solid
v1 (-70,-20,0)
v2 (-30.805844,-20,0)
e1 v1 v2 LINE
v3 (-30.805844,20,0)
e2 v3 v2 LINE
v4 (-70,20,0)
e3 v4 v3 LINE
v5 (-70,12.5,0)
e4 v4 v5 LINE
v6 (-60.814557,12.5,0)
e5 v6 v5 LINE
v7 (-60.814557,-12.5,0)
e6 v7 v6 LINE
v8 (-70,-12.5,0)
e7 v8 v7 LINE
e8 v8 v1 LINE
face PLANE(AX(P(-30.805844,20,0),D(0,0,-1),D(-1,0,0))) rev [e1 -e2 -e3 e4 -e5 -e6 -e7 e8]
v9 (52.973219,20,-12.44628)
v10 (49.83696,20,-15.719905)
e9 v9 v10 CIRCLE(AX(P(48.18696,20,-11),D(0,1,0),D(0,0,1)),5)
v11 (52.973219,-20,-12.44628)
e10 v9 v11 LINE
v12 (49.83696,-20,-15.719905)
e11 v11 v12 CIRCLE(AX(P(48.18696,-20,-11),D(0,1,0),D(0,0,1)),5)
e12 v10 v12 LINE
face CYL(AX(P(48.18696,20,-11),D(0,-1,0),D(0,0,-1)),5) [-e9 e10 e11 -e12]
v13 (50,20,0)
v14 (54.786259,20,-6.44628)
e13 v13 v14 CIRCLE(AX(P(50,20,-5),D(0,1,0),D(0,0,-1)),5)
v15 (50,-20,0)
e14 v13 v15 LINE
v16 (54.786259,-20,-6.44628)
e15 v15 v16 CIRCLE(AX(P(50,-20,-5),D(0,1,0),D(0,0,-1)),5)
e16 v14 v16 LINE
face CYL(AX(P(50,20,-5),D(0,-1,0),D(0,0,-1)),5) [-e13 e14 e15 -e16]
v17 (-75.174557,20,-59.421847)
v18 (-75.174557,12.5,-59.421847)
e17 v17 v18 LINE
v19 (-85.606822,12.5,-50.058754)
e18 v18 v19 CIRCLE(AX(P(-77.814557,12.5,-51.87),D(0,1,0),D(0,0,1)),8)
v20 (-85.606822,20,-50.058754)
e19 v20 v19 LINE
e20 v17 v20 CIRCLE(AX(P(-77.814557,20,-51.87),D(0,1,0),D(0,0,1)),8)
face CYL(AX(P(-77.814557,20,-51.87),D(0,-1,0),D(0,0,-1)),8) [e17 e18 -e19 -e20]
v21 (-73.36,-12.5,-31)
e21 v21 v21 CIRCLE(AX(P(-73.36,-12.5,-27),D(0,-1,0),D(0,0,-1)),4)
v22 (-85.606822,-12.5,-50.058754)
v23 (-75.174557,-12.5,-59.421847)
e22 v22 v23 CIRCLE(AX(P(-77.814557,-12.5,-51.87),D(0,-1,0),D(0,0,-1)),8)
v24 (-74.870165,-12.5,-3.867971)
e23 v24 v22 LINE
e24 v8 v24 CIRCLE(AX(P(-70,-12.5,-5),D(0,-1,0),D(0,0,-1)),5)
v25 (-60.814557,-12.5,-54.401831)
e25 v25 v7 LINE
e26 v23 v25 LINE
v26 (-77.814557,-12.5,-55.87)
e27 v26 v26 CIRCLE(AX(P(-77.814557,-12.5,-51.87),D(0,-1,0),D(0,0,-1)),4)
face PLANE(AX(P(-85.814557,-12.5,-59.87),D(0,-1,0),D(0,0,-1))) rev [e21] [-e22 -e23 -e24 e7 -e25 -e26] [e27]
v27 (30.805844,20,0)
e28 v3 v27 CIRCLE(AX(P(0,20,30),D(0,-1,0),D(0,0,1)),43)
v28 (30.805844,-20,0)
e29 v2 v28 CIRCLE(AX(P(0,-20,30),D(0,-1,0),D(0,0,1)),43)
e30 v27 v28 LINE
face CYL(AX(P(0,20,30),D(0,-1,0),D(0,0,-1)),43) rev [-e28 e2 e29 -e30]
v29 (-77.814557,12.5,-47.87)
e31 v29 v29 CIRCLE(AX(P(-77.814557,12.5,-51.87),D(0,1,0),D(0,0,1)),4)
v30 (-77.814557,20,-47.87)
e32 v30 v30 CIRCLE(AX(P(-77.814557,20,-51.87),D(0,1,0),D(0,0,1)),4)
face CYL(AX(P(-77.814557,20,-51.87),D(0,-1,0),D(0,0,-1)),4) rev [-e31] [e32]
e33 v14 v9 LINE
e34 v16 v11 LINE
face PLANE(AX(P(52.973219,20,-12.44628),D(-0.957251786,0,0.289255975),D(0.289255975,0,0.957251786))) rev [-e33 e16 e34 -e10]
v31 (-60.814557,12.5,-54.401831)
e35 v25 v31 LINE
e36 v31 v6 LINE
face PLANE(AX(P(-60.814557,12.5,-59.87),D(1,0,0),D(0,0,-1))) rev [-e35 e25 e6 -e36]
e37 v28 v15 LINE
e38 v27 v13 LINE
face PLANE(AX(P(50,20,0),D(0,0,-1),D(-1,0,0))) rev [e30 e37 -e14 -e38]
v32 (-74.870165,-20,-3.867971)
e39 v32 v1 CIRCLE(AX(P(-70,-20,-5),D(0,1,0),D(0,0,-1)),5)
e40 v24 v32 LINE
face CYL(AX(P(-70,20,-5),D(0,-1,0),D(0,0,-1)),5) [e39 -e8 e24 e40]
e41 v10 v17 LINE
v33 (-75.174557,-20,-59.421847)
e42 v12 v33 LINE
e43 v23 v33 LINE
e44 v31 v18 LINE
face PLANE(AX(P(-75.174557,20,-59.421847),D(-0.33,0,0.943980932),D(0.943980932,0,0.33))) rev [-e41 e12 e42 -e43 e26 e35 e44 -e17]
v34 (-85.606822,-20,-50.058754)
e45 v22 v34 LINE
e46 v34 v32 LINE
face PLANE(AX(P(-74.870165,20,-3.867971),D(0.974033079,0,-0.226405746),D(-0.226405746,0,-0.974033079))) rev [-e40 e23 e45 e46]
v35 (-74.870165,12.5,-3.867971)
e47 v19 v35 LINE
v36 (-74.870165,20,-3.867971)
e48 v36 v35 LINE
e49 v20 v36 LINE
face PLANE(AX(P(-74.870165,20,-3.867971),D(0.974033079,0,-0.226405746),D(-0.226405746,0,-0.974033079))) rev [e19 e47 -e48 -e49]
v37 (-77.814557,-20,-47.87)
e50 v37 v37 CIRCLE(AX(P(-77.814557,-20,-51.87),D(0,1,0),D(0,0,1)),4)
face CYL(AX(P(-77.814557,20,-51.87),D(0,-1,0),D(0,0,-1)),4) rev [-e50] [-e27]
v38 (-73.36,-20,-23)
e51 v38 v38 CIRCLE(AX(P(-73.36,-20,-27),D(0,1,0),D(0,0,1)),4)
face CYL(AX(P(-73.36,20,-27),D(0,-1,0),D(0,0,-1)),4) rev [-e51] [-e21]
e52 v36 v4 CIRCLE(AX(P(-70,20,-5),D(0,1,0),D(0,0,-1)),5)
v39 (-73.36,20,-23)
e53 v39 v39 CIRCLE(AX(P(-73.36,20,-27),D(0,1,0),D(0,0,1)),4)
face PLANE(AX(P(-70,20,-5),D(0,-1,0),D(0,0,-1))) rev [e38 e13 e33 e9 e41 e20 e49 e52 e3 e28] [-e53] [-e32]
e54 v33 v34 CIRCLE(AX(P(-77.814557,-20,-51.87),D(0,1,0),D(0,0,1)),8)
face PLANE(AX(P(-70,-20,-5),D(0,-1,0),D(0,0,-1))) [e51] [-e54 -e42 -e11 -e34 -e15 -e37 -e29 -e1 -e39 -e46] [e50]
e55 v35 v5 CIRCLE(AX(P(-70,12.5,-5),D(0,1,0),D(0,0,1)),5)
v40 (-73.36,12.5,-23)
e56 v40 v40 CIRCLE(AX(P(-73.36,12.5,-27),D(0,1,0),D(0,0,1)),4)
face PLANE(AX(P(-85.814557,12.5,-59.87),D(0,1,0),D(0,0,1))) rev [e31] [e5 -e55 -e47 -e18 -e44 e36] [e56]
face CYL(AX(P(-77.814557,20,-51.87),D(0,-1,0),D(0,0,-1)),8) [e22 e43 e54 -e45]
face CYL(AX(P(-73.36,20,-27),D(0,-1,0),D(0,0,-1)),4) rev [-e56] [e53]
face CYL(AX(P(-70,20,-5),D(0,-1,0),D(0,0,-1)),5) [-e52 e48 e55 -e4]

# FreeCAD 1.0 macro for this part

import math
import FreeCAD as App
import Part
import Sketcher
from FreeCAD import Vector
Q = App.Units.Quantity


def add_polygon(sketch, points):
    """Adds a closed chain of lines whose ends are joined by coincident constraints."""
    first, n = sketch.GeometryCount, len(points)
    for a, b in zip(points, points[1:] + points[:1]):
        sketch.addGeometry(Part.LineSegment(App.Vector(*a, 0), App.Vector(*b, 0)), False)
    for i in range(n):
        sketch.addConstraint(Sketcher.Constraint("Coincident", first + i, 2, first + (i + 1) % n, 1))

doc = App.newDocument("Part")
params = doc.addObject("Spreadsheet::Sheet", "Params")
for row, (alias, value) in enumerate([
    ("sketch1_diameter", "8 mm"),
    ("sketch1_radius", "43 mm"),
    ("sketch1_radius2", "5 mm"),
    ("sketch1_radius3", "8 mm"),
    ("pad1_length", "40 mm"),
    ("sketch2_width", "25 mm"),
], start=1):
    params.set(f"A{row}", alias)
    params.set(f"B{row}", "=" + value)
    params.setAlias(f"B{row}", alias)

body = doc.addObject("PartDesign::Body", "Body")

# Sketch on XZ plane
sketch1 = body.newObject("Sketcher::SketchObject", "Sketch")
sketch1.AttachmentSupport = (doc.getObject("XZ_Plane"), [""])
sketch1.MapMode = "FlatFace"
sketch1.addGeometry(Part.LineSegment(Vector(-70, 0, 0), Vector(-30.8, 0, 0)), False)
sketch1.addGeometry(Part.ArcOfCircle(Part.Circle(Vector(0, 30, 0), Vector(0, 0, 1), 43), math.radians(-136), math.radians(-44)), False)
sketch1.addGeometry(Part.LineSegment(Vector(30.8, 0, 0), Vector(50, 0, 0)), False)
sketch1.addGeometry(Part.ArcOfCircle(Part.Circle(Vector(50, -5, 0), Vector(0, 0, 1), 5), math.radians(-17), math.radians(90)), False)
sketch1.addGeometry(Part.LineSegment(Vector(54.8, -6.4, 0), Vector(53, -12.4, 0)), False)
sketch1.addGeometry(Part.ArcOfCircle(Part.Circle(Vector(48.2, -11, 0), Vector(0, 0, 1), 5), math.radians(-71), math.radians(-17)), False)
sketch1.addGeometry(Part.LineSegment(Vector(49.8, -15.7, 0), Vector(-75.2, -59.4, 0)), False)
sketch1.addGeometry(Part.ArcOfCircle(Part.Circle(Vector(-77.8, -51.9, 0), Vector(0, 0, 1), 8), math.radians(167), math.radians(289)), False)
sketch1.addGeometry(Part.LineSegment(Vector(-85.6, -50.1, 0), Vector(-74.9, -3.9, 0)), False)
sketch1.addGeometry(Part.ArcOfCircle(Part.Circle(Vector(-70, -5, 0), Vector(0, 0, 1), 5), math.radians(90), math.radians(167)), False)
sketch1.addGeometry(Part.Circle(Vector(-73.4, -27, 0), Vector(0, 0, 1), 4), False)
sketch1.addGeometry(Part.Circle(Vector(-77.8, -51.9, 0), Vector(0, 0, 1), 4), False)
sketch1.addConstraint(Sketcher.Constraint("Coincident", 0, 2, 1, 1))
sketch1.addConstraint(Sketcher.Constraint("Coincident", 1, 2, 2, 1))
sketch1.addConstraint(Sketcher.Constraint("Tangent", 2, 2, 3, 2))
sketch1.addConstraint(Sketcher.Constraint("Tangent", 3, 1, 4, 1))
sketch1.addConstraint(Sketcher.Constraint("Tangent", 4, 2, 5, 2))
sketch1.addConstraint(Sketcher.Constraint("Tangent", 5, 1, 6, 1))
sketch1.addConstraint(Sketcher.Constraint("Tangent", 6, 2, 7, 2))
sketch1.addConstraint(Sketcher.Constraint("Tangent", 7, 1, 8, 1))
sketch1.addConstraint(Sketcher.Constraint("Tangent", 8, 2, 9, 2))
sketch1.addConstraint(Sketcher.Constraint("Tangent", 9, 1, 0, 1))
sketch1.addConstraint(Sketcher.Constraint("Horizontal", 0))
sketch1.addConstraint(Sketcher.Constraint("Horizontal", 2))
sketch1.addConstraint(Sketcher.Constraint("Coincident", 11, 3, 7, 3))
sketch1.addConstraint(Sketcher.Constraint("Equal", 3, 5))
sketch1.addConstraint(Sketcher.Constraint("Equal", 5, 9))
sketch1.addConstraint(Sketcher.Constraint("Equal", 10, 11))
sketch1.addConstraint(Sketcher.Constraint("Symmetric", 0, 2, 1, 2, -1, 1))
sketch1.addConstraint(Sketcher.Constraint("PointOnObject", 1, 3, -2))
sketch1.addConstraint(Sketcher.Constraint("Diameter", 10, Q("8 mm")))
sketch1.addConstraint(Sketcher.Constraint("Radius", 1, Q("43 mm")))
sketch1.addConstraint(Sketcher.Constraint("Radius", 3, Q("5 mm")))
sketch1.addConstraint(Sketcher.Constraint("Radius", 7, Q("8 mm")))
sketch1.addConstraint(Sketcher.Constraint("DistanceY", -1, 1, 1, 3, Q("30 mm")))
sketch1.addConstraint(Sketcher.Constraint("DistanceX", -1, 1, 3, 3, Q("50 mm")))
sketch1.addConstraint(Sketcher.Constraint("DistanceY", 5, 3, -1, 1, Q("11 mm")))
sketch1.addConstraint(Sketcher.Constraint("DistanceX", 9, 3, -1, 1, Q("70 mm")))
sketch1.addConstraint(Sketcher.Constraint("DistanceY", 10, 3, -1, 1, Q("27 mm")))
sketch1.addConstraint(Sketcher.Constraint("DistanceY", 7, 3, -1, 1, Q("51.87 mm")))
sketch1.addConstraint(Sketcher.Constraint("DistanceX", 10, 3, -1, 1, Q("73.36 mm")))
sketch1.addConstraint(Sketcher.Constraint("DistanceX", 11, 3, 6, 2, Q("2.64 mm")))
sketch1.addConstraint(Sketcher.Constraint("DistanceX", 5, 3, 3, 1, Q("6.599299 mm")))
sketch1.setExpression("Constraints[18]", "Params.sketch1_diameter")
sketch1.setExpression("Constraints[19]", "Params.sketch1_radius")
sketch1.setExpression("Constraints[20]", "Params.sketch1_radius2")
sketch1.setExpression("Constraints[21]", "Params.sketch1_radius3")
pad1 = body.newObject("PartDesign::Pad", "Pad")
pad1.Profile = sketch1
pad1.setExpression("Length", "Params.pad1_length")
pad1.Midplane = True

# Sketch on XY plane
sketch2 = body.newObject("Sketcher::SketchObject", "Sketch001")
sketch2.AttachmentSupport = (doc.getObject("XY_Plane"), [""])
sketch2.MapMode = "FlatFace"
add_polygon(sketch2, [(-86, 12), (-86, -12), (-61, -12), (-61, 12)])  # lines 0-3
sketch2.addConstraint(Sketcher.Constraint("Vertical", 0))
sketch2.addConstraint(Sketcher.Constraint("Horizontal", 1))
sketch2.addConstraint(Sketcher.Constraint("Vertical", 2))
sketch2.addConstraint(Sketcher.Constraint("Horizontal", 3))
sketch2.addConstraint(Sketcher.Constraint("Equal", 3, 0))
sketch2.addConstraint(Sketcher.Constraint("DistanceX", 1, 1, 1, 2, Q("25 mm")))
sketch2.addConstraint(Sketcher.Constraint("DistanceY", 0, 2, -1, 1, Q("12.5 mm")))
sketch2.addConstraint(Sketcher.Constraint("DistanceX", 0, 2, -1, 1, Q("85.814557 mm")))
sketch2.setExpression("Constraints[9]", "Params.sketch2_width")
pocket1 = body.newObject("PartDesign::Pocket", "Pocket")
pocket1.Profile = sketch2
pocket1.Type = "ThroughAll"

doc.recompute()
